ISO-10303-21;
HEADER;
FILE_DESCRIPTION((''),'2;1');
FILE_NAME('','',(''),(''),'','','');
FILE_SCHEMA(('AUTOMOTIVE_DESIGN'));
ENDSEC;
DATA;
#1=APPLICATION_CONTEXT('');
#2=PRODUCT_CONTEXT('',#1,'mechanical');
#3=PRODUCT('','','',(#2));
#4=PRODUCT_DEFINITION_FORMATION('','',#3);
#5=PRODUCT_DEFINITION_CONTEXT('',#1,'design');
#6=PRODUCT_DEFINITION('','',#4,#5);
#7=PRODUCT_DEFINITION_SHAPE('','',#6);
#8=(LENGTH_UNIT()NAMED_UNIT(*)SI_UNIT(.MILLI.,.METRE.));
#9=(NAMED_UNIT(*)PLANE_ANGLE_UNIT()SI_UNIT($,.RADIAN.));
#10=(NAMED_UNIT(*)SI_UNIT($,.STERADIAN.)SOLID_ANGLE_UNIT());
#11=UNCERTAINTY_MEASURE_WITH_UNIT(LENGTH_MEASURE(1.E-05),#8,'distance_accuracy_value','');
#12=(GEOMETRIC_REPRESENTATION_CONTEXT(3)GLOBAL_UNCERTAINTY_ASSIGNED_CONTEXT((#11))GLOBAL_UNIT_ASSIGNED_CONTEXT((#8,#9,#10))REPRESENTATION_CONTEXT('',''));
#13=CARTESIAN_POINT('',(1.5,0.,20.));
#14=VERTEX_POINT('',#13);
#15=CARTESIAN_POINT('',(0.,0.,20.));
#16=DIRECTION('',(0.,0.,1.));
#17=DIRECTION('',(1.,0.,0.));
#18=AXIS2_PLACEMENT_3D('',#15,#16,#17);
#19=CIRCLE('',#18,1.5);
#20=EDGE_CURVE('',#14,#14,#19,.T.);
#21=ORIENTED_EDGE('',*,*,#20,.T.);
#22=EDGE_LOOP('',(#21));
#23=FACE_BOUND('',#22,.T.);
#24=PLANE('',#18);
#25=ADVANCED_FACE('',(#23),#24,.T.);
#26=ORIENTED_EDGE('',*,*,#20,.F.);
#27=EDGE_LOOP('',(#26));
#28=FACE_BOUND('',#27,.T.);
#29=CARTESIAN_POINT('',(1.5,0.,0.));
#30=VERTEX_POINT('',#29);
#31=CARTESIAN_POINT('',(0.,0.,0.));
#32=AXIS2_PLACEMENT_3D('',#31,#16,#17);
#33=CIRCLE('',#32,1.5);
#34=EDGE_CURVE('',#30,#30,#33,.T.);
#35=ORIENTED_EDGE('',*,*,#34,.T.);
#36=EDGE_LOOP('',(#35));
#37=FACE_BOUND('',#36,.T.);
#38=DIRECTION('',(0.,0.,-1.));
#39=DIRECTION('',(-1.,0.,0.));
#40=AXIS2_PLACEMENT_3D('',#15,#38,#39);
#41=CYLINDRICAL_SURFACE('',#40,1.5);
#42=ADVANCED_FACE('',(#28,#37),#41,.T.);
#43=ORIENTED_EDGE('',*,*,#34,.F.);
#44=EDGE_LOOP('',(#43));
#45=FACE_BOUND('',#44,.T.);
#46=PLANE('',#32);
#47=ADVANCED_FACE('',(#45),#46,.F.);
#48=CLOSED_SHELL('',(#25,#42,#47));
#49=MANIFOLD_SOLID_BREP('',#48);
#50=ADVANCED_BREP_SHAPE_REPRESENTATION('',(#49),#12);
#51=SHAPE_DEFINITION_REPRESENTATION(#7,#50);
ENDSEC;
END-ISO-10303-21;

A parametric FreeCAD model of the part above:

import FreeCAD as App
import Part
import Sketcher

V = App.Vector

doc = App.newDocument("Part")
params = doc.addObject("Spreadsheet::Sheet", "Params")
for row, (alias, value) in enumerate([
    ("sketch1_diameter", "3 mm"),
    ("pad1_length", "20 mm"),
], start=1):
    params.set(f"A{row}", alias)
    params.set(f"B{row}", "=" + value)
    params.setAlias(f"B{row}", alias)

body = doc.addObject("PartDesign::Body", "Body")

# Sketch on XY plane
sketch1 = body.newObject("Sketcher::SketchObject", "Sketch")
sketch1.AttachmentSupport = (doc.getObject("XY_Plane"), [""])
sketch1.MapMode = "FlatFace"
sketch1.addGeometry(Part.Circle(V(0, 0, 0), V(0, 0, 1), 1.5), False)
sketch1.addConstraint(Sketcher.Constraint("Coincident", 0, 3, -1, 1))
sketch1.addConstraint(Sketcher.Constraint("Diameter", 0, 3.0))
sketch1.setExpression("Constraints[1]", "Params.sketch1_diameter")
pad1 = body.newObject("PartDesign::Pad", "Pad")
pad1.Profile = sketch1
pad1.setExpression("Length", "Params.pad1_length")

doc.recompute()
